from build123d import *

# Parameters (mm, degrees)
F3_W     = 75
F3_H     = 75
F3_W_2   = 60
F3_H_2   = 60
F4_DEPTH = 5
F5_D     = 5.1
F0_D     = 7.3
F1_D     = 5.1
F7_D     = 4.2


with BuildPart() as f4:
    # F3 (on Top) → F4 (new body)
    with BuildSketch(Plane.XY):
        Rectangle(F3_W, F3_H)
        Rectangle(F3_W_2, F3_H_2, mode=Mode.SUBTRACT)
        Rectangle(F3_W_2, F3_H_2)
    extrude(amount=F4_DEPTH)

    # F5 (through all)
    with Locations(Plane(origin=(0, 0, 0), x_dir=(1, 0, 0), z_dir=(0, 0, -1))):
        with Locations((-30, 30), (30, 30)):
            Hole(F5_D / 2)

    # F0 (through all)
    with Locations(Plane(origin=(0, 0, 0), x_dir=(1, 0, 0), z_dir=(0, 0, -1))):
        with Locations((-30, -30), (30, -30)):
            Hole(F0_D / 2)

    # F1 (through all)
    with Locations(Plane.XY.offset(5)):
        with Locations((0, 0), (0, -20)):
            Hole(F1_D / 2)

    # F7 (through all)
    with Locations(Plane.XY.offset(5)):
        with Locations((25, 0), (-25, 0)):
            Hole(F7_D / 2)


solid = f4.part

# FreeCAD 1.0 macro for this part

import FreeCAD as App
import Part
import Sketcher
from FreeCAD import Vector
Q = App.Units.Quantity


def add_polygon(sketch, points):
    """Adds a closed chain of lines whose ends are joined by coincident constraints."""
    first, n = sketch.GeometryCount, len(points)
    for a, b in zip(points, points[1:] + points[:1]):
        sketch.addGeometry(Part.LineSegment(App.Vector(*a, 0), App.Vector(*b, 0)), False)
    for i in range(n):
        sketch.addConstraint(Sketcher.Constraint("Coincident", first + i, 2, first + (i + 1) % n, 1))

doc = App.newDocument("Part")
body = doc.addObject("PartDesign::Body", "Body")

sketch1 = doc.addObject("Sketcher::SketchObject", "Sketch")
body.addObject(sketch1)
sketch1.AttachmentSupport = (doc.XY_Plane, [""])
sketch1.MapMode = "FlatFace"
add_polygon(sketch1, [(-37.5, 37.5), (-37.5, -37.5), (37.5, -37.5), (37.5, 37.5)])
sketch1.addConstraint(Sketcher.Constraint("Vertical", 0))
sketch1.addConstraint(Sketcher.Constraint("Horizontal", 1))
sketch1.addConstraint(Sketcher.Constraint("Vertical", 2))
sketch1.addConstraint(Sketcher.Constraint("Horizontal", 3))
sketch1.addConstraint(Sketcher.Constraint("Symmetric", 0, 2, 2, 2, -1, 1))
sketch1.addConstraint(Sketcher.Constraint("Equal", 3, 0))
sketch1.addConstraint(Sketcher.Constraint("DistanceX", 1, 1, 1, 2, Q("75 mm")))
pad1 = doc.addObject("PartDesign::Pad", "Pad")
body.addObject(pad1)
pad1.Profile = sketch1
pad1.Length = 5

sketch2 = doc.addObject("Sketcher::SketchObject", "Sketch001")
body.addObject(sketch2)
sketch2.AttachmentSupport = (doc.XY_Plane, [""])
sketch2.MapMode = "FlatFace"
sketch2.addGeometry(Part.Circle(Vector(-30, -30, 0), Vector(0, 0, 1), 2.55), False)
sketch2.addGeometry(Part.Circle(Vector(30, -30, 0), Vector(0, 0, 1), 2.55), False)
sketch2.addConstraint(Sketcher.Constraint("Equal", 0, 1))
sketch2.addConstraint(Sketcher.Constraint("Symmetric", 0, 3, 1, 3, -2))
sketch2.addConstraint(Sketcher.Constraint("Diameter", 0, Q("5.1 mm")))
sketch2.addConstraint(Sketcher.Constraint("DistanceX", 0, 3, -1, 1, Q("30 mm")))
sketch2.addConstraint(Sketcher.Constraint("DistanceY", 0, 3, -1, 1, Q("30 mm")))
doc.recompute()
hole = doc.addObject("PartDesign::Hole", "Hole")
body.addObject(hole)
hole.Profile = sketch2
hole.ThreadType = "None"
hole.Diameter = 5.1
hole.DepthType = "ThroughAll"
hole.Reversed = True

sketch3 = doc.addObject("Sketcher::SketchObject", "Sketch002")
body.addObject(sketch3)
sketch3.AttachmentSupport = (doc.XY_Plane, [""])
sketch3.MapMode = "FlatFace"
sketch3.addGeometry(Part.Circle(Vector(-30, 30, 0), Vector(0, 0, 1), 3.65), False)
sketch3.addGeometry(Part.Circle(Vector(30, 30, 0), Vector(0, 0, 1), 3.65), False)
sketch3.addConstraint(Sketcher.Constraint("Equal", 0, 1))
sketch3.addConstraint(Sketcher.Constraint("Symmetric", 0, 3, 1, 3, -2))
sketch3.addConstraint(Sketcher.Constraint("Diameter", 0, Q("7.3 mm")))
sketch3.addConstraint(Sketcher.Constraint("DistanceX", 0, 3, -1, 1, Q("30 mm")))
sketch3.addConstraint(Sketcher.Constraint("DistanceY", -1, 1, 0, 3, Q("30 mm")))
doc.recompute()
hole2 = doc.addObject("PartDesign::Hole", "Hole001")
body.addObject(hole2)
hole2.Profile = sketch3
hole2.ThreadType = "None"
hole2.Diameter = 7.3
hole2.DepthType = "ThroughAll"
hole2.Reversed = True

sketch4 = doc.addObject("Sketcher::SketchObject", "Sketch003")
body.addObject(sketch4)
sketch4.AttachmentSupport = (doc.XY_Plane, [""])
sketch4.MapMode = "FlatFace"
sketch4.AttachmentOffset = App.Placement(Vector(0, 0, 5), App.Rotation())
sketch4.addGeometry(Part.Circle(Vector(0, 0, 0), Vector(0, 0, 1), 2.55), False)
sketch4.addGeometry(Part.Circle(Vector(0, -20, 0), Vector(0, 0, 1), 2.55), False)
sketch4.addConstraint(Sketcher.Constraint("Coincident", 0, 3, -1, 1))
sketch4.addConstraint(Sketcher.Constraint("Equal", 0, 1))
sketch4.addConstraint(Sketcher.Constraint("PointOnObject", 1, 3, -2))
sketch4.addConstraint(Sketcher.Constraint("Diameter", 0, Q("5.1 mm")))
sketch4.addConstraint(Sketcher.Constraint("DistanceY", 1, 3, -1, 1, Q("20 mm")))
doc.recompute()
hole3 = doc.addObject("PartDesign::Hole", "Hole002")
body.addObject(hole3)
hole3.Profile = sketch4
hole3.ThreadType = "None"
hole3.Diameter = 5.1
hole3.DepthType = "ThroughAll"

sketch5 = doc.addObject("Sketcher::SketchObject", "Sketch004")
body.addObject(sketch5)
sketch5.AttachmentSupport = (doc.XY_Plane, [""])
sketch5.MapMode = "FlatFace"
sketch5.AttachmentOffset = App.Placement(Vector(0, 0, 5), App.Rotation())
sketch5.addGeometry(Part.Circle(Vector(25, 0, 0), Vector(0, 0, 1), 2.1), False)
sketch5.addGeometry(Part.Circle(Vector(-25, 0, 0), Vector(0, 0, 1), 2.1), False)
sketch5.addConstraint(Sketcher.Constraint("Equal", 0, 1))
sketch5.addConstraint(Sketcher.Constraint("Symmetric", 0, 3, 1, 3, -1, 1))
sketch5.addConstraint(Sketcher.Constraint("PointOnObject", 0, 3, -1))
sketch5.addConstraint(Sketcher.Constraint("Diameter", 0, Q("4.2 mm")))
sketch5.addConstraint(Sketcher.Constraint("DistanceX", -1, 1, 0, 3, Q("25 mm")))
doc.recompute()
hole4 = doc.addObject("PartDesign::Hole", "Hole003")
body.addObject(hole4)
hole4.Profile = sketch5
hole4.ThreadType = "None"
hole4.Diameter = 4.2
hole4.DepthType = "ThroughAll"

doc.recompute()
